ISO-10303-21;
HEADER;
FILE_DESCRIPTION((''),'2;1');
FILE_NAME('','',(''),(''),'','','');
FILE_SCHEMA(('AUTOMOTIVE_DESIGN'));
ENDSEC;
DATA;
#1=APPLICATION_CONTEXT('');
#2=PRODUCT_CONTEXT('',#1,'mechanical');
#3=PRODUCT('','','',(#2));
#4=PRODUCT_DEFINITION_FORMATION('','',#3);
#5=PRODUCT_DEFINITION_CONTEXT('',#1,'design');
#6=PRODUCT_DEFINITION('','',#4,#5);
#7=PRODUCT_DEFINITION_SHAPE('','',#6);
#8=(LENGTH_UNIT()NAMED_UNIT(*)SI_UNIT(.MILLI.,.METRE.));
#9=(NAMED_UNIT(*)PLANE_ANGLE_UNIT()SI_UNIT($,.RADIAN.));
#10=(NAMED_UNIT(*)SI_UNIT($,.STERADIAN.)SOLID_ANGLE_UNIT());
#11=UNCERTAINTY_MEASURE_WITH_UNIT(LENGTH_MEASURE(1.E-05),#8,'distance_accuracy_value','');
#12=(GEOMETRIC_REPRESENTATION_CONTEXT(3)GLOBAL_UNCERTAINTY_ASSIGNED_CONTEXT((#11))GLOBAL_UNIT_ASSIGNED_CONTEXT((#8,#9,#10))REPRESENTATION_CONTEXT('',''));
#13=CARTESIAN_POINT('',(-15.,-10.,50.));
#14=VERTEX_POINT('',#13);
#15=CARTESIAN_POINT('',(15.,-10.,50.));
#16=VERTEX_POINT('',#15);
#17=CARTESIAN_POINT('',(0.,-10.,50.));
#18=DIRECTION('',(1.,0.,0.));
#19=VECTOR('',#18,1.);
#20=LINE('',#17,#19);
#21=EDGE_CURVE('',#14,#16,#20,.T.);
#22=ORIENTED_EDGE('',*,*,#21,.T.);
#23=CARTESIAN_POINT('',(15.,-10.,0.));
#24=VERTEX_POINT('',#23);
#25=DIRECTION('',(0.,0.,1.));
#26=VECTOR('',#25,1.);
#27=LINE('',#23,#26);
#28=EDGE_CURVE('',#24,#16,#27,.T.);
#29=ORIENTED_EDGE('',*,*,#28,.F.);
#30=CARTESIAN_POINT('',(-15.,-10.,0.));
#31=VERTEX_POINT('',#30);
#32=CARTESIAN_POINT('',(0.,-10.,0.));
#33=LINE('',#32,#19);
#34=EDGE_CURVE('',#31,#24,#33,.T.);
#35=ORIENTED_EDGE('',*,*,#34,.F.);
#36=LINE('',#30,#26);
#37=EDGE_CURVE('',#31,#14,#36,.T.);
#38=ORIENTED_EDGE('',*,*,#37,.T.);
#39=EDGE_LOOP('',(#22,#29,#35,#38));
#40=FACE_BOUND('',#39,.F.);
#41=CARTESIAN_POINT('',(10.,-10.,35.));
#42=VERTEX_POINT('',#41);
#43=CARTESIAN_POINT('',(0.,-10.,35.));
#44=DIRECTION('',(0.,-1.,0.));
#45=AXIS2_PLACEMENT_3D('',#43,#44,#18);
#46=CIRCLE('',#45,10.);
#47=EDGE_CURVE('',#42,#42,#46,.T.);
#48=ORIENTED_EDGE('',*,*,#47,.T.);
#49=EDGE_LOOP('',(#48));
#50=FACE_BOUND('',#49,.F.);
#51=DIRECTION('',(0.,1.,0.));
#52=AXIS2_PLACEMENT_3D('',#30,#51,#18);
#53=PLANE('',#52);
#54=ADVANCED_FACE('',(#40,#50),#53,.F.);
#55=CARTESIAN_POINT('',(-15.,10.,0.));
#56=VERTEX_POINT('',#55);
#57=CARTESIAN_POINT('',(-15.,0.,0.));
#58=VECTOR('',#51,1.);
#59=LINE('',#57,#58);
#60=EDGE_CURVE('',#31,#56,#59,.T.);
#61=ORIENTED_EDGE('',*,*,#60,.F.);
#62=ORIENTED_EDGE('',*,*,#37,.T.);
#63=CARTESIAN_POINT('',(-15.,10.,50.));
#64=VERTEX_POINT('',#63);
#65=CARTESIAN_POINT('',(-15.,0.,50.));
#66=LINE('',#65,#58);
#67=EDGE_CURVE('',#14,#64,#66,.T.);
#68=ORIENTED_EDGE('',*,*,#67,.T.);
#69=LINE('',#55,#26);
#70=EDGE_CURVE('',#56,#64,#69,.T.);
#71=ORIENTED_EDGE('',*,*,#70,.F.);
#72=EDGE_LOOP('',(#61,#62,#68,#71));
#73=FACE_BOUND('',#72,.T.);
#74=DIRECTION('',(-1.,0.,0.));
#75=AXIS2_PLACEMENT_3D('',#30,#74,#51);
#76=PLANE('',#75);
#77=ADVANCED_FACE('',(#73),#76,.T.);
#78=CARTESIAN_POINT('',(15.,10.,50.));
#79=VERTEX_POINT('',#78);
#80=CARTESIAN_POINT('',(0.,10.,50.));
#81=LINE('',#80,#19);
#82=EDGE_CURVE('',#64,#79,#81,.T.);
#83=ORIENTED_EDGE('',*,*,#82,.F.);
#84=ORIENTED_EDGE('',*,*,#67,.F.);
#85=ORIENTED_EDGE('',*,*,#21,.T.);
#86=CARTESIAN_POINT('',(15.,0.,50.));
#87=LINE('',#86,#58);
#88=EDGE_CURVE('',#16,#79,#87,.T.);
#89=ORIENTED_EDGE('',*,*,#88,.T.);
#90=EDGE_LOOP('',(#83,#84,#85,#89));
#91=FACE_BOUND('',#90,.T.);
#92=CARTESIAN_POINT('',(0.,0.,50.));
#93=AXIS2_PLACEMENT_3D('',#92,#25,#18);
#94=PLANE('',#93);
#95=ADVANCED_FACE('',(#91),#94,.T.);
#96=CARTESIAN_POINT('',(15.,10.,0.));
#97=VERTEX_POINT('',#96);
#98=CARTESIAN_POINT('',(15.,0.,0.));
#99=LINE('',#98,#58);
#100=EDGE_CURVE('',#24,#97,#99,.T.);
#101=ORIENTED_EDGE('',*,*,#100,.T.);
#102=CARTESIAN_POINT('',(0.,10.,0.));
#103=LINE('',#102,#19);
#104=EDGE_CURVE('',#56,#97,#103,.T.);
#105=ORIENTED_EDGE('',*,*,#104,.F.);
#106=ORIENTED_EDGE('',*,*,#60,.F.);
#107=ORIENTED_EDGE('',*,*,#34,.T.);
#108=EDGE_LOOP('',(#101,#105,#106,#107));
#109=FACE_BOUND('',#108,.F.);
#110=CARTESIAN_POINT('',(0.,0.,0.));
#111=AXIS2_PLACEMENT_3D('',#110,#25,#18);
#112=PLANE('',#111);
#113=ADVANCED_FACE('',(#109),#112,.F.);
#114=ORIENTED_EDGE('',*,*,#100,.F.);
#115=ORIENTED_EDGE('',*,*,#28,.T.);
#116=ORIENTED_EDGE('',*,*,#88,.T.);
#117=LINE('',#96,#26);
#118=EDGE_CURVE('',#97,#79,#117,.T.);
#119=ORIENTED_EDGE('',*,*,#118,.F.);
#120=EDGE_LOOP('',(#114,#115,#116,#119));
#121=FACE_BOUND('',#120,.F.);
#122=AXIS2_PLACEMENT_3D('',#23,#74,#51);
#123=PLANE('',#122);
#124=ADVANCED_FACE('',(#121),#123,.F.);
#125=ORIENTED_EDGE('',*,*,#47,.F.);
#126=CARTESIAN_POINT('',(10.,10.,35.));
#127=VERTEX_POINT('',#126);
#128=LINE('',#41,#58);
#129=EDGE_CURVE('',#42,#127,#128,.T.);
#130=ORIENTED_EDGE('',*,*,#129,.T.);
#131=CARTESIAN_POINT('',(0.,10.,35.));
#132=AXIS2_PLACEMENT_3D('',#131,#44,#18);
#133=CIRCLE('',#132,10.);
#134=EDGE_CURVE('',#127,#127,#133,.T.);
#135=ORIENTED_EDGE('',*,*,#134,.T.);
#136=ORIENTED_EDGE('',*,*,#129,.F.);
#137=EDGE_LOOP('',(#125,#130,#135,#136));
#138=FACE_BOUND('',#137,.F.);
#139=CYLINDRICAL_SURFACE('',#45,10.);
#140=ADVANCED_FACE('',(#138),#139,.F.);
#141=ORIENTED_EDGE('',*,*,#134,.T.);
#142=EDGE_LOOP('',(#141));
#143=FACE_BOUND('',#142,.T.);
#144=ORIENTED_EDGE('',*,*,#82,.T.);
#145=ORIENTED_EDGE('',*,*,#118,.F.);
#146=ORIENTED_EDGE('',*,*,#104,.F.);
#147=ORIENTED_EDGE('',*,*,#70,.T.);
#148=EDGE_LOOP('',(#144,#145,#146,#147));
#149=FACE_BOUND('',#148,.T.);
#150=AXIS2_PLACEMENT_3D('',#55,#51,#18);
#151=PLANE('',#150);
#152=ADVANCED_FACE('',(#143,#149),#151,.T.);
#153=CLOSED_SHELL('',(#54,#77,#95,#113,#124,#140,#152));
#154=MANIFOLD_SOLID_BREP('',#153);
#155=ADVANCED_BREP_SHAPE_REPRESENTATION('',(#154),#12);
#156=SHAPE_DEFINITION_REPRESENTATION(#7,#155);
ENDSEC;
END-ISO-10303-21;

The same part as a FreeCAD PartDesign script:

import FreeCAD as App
import Part
import Sketcher

V = App.Vector

doc = App.newDocument("Part")
body = doc.addObject("PartDesign::Body", "Body")

# Sketch on XY plane
sketch1 = doc.addObject("Sketcher::SketchObject", "Sketch")
body.addObject(sketch1)
sketch1.AttachmentSupport = (doc.XY_Plane, [""])
sketch1.MapMode = "FlatFace"
sketch1.addGeometry(Part.LineSegment(V(-15, 10, 0), V(-15, -10, 0)), False)
sketch1.addGeometry(Part.LineSegment(V(-15, -10, 0), V(15, -10, 0)), False)
sketch1.addGeometry(Part.LineSegment(V(15, -10, 0), V(15, 10, 0)), False)
sketch1.addGeometry(Part.LineSegment(V(15, 10, 0), V(-15, 10, 0)), False)
sketch1.addConstraint(Sketcher.Constraint("Coincident", 0, 2, 1, 1))
sketch1.addConstraint(Sketcher.Constraint("Coincident", 1, 2, 2, 1))
sketch1.addConstraint(Sketcher.Constraint("Coincident", 2, 2, 3, 1))
sketch1.addConstraint(Sketcher.Constraint("Coincident", 3, 2, 0, 1))
sketch1.addConstraint(Sketcher.Constraint("Vertical", 0))
sketch1.addConstraint(Sketcher.Constraint("Horizontal", 1))
sketch1.addConstraint(Sketcher.Constraint("Vertical", 2))
sketch1.addConstraint(Sketcher.Constraint("Horizontal", 3))
sketch1.addConstraint(Sketcher.Constraint("Symmetric", 0, 2, 2, 2, -1, 1))
sketch1.addConstraint(Sketcher.Constraint("DistanceX", 1, 1, 1, 2, 30.0))
sketch1.addConstraint(Sketcher.Constraint("DistanceY", 0, 2, 0, 1, 20.0))
pad1 = doc.addObject("PartDesign::Pad", "Pad")
body.addObject(pad1)
pad1.Profile = sketch1
pad1.Length = 50

# Sketch on XZ plane
sketch2 = doc.addObject("Sketcher::SketchObject", "Sketch001")
body.addObject(sketch2)
sketch2.AttachmentSupport = (doc.XZ_Plane, [""])
sketch2.MapMode = "FlatFace"
sketch2.AttachmentOffset = App.Placement(V(0, 0, 10), App.Rotation())
sketch2.addGeometry(Part.Circle(V(0, 35, 0), V(0, 0, 1), 10), False)
sketch2.addConstraint(Sketcher.Constraint("PointOnObject", 0, 3, -2))
sketch2.addConstraint(Sketcher.Constraint("Diameter", 0, 20.0))
sketch2.addConstraint(Sketcher.Constraint("DistanceY", -1, 1, 0, 3, 35.0))
pocket1 = doc.addObject("PartDesign::Pocket", "Pocket")
body.addObject(pocket1)
pocket1.Profile = sketch2
pocket1.Length = 25

doc.recompute()
